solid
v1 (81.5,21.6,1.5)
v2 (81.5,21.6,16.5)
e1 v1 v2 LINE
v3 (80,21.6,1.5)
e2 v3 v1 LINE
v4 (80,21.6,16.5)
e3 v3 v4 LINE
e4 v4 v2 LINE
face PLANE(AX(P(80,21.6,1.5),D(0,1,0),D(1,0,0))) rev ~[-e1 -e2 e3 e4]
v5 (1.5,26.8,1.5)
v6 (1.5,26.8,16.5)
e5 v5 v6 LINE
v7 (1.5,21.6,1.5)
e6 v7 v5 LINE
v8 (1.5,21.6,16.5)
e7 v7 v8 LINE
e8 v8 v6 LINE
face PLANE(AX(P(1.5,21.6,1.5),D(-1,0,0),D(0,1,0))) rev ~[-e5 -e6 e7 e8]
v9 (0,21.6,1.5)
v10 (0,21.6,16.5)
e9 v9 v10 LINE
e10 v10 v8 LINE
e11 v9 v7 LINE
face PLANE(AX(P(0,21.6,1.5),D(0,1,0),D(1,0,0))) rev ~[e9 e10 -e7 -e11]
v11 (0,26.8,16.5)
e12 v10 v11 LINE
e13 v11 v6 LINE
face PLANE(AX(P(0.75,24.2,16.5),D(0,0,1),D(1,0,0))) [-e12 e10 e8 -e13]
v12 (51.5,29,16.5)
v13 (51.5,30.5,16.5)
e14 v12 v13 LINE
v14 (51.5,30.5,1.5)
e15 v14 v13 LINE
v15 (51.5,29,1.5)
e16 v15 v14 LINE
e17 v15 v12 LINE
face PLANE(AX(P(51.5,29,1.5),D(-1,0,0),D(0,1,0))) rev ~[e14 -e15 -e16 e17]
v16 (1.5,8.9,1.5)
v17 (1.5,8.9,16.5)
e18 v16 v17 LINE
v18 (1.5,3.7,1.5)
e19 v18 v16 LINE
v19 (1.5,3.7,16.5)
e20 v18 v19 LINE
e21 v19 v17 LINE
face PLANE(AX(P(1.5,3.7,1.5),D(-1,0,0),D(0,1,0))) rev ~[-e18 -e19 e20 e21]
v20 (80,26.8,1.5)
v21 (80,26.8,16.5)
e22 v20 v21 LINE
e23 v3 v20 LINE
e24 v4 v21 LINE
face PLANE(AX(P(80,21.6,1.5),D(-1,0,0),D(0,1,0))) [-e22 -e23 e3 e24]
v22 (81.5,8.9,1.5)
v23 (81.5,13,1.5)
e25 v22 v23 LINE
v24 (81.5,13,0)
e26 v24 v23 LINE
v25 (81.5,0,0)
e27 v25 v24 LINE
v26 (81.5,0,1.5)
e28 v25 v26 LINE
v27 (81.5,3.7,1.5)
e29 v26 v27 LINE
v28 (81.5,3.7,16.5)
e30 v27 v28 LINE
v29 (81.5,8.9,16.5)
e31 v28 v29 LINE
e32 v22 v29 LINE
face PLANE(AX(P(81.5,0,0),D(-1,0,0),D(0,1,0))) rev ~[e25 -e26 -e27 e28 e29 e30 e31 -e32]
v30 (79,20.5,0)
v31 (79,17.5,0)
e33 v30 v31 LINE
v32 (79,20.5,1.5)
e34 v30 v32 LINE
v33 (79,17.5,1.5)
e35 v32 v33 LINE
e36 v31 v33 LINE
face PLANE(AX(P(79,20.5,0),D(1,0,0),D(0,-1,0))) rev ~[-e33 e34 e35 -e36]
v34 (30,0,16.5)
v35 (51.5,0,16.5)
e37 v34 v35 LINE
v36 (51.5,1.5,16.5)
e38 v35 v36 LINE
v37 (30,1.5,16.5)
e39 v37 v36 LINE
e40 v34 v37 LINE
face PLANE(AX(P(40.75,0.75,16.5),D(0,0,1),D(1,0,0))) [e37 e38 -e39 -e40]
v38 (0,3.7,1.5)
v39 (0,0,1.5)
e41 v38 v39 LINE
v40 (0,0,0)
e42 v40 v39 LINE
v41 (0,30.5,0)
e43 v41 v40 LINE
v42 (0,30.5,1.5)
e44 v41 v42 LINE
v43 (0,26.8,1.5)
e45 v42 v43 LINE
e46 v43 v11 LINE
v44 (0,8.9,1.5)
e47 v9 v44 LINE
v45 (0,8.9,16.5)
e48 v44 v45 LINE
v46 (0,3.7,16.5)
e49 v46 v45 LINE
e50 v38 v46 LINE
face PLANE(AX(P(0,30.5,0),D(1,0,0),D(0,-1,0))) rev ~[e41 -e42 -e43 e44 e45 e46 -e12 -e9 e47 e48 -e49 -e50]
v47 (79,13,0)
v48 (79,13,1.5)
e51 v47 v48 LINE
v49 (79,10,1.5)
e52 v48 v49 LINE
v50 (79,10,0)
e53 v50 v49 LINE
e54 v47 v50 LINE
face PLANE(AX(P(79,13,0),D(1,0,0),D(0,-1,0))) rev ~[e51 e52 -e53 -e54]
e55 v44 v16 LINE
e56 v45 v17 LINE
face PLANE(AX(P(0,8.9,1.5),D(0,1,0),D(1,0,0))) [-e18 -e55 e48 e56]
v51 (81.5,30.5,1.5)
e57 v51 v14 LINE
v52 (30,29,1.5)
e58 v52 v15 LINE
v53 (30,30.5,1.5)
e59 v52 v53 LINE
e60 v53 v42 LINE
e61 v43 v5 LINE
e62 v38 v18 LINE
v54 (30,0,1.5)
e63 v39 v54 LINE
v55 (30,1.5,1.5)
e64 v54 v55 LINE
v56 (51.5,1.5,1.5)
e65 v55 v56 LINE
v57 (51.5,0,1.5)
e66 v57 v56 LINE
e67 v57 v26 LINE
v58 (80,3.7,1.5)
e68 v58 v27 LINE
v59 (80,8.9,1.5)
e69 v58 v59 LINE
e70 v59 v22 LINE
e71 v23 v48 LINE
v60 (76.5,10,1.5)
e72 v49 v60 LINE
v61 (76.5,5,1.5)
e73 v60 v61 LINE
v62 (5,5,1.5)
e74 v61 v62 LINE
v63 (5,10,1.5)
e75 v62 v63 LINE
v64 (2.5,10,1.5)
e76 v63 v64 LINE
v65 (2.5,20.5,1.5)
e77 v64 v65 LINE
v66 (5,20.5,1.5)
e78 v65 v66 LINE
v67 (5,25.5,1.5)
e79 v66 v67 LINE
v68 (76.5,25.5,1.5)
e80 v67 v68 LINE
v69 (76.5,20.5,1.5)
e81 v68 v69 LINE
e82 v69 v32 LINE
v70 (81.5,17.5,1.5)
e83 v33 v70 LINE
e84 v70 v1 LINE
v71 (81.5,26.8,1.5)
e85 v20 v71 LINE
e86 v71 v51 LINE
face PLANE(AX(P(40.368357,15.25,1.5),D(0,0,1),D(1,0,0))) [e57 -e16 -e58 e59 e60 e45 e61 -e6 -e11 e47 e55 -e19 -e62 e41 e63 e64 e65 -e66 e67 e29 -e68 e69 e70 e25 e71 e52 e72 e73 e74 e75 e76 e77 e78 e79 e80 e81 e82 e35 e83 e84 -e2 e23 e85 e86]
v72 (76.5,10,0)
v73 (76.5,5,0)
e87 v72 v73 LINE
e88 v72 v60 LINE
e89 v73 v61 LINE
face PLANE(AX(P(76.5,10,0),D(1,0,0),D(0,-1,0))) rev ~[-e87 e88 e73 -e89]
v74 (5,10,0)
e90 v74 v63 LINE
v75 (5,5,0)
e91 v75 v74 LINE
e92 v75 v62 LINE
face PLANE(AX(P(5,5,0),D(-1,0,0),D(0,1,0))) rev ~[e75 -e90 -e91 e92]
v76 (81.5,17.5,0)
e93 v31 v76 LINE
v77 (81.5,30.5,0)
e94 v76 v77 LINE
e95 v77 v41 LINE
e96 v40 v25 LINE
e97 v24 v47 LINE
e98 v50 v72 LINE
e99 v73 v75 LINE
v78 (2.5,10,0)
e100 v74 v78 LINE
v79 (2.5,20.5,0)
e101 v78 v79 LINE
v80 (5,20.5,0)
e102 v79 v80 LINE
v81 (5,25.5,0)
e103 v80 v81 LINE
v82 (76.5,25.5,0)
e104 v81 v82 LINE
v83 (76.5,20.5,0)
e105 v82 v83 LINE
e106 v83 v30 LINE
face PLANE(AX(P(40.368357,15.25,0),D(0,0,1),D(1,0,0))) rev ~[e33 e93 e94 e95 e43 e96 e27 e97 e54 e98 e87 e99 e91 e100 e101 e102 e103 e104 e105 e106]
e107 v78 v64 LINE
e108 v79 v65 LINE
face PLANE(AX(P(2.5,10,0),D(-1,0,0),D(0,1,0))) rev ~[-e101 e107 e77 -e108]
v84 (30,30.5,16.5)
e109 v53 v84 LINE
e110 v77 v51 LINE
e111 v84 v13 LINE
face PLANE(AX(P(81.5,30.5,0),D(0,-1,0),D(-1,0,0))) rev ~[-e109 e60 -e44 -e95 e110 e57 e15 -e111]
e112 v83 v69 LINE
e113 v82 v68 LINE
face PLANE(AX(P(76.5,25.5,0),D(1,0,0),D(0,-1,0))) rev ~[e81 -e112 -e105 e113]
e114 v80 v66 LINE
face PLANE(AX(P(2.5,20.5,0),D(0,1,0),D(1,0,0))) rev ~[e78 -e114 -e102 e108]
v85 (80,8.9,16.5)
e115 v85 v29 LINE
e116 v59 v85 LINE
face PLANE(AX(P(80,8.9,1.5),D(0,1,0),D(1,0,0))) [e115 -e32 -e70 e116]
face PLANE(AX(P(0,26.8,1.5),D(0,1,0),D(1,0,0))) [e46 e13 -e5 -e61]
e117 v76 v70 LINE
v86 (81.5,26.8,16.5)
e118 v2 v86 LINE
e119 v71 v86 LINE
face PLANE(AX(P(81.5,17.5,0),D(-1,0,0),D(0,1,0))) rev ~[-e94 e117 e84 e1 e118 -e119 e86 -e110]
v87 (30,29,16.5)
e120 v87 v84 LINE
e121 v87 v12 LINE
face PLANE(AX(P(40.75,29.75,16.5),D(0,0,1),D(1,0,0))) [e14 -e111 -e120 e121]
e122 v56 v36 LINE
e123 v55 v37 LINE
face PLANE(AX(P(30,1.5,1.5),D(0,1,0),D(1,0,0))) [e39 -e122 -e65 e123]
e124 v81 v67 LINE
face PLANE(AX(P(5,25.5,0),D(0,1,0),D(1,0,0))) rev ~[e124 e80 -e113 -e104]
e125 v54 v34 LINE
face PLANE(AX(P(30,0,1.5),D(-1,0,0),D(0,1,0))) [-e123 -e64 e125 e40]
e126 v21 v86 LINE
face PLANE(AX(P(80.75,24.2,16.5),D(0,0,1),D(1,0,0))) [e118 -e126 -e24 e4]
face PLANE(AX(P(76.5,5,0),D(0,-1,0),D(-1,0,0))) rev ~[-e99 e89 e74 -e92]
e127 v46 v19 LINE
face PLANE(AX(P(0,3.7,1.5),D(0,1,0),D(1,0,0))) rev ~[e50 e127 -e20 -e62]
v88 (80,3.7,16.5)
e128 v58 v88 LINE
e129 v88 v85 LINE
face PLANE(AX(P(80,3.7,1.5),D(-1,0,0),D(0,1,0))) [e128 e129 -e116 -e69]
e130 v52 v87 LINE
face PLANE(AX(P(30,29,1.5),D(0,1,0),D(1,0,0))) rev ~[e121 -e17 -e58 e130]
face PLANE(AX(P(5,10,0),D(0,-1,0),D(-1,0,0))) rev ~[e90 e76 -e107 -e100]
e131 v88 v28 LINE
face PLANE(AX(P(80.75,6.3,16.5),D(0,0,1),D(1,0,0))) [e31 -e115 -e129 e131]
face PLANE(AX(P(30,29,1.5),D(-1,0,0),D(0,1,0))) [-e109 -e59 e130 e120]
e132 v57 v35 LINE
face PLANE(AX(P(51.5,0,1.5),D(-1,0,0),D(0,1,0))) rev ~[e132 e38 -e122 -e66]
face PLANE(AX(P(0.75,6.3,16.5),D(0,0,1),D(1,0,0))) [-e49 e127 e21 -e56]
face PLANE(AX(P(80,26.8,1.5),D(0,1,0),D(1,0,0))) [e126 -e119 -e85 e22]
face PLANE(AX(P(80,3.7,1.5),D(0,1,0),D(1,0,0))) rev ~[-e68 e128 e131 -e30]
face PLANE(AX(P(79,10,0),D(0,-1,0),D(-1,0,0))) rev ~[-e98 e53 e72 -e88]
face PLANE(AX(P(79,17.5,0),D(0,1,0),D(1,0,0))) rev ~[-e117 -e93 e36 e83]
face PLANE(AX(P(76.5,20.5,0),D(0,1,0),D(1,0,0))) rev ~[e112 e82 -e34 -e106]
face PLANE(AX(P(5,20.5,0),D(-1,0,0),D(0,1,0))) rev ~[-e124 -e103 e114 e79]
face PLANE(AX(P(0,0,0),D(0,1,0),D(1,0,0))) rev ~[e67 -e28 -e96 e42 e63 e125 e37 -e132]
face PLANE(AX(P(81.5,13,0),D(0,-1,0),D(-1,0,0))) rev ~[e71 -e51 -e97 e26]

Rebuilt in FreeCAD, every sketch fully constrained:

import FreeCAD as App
import Part
import Sketcher
from FreeCAD import Vector
Q = App.Units.Quantity

doc = App.newDocument("Part")
body = doc.addObject("PartDesign::Body", "Body")

sketch1 = body.newObject("Sketcher::SketchObject", "Sketch")
sketch1.AttachmentSupport = (doc.getObject("XY_Plane"), [""])
sketch1.MapMode = "FlatFace"
sketch1.addGeometry(Part.LineSegment(Vector(0, 0, 0), Vector(81.5, 0, 0)), False)
sketch1.addGeometry(Part.LineSegment(Vector(81.5, 0, 0), Vector(81.5, 13, 0)), False)
sketch1.addGeometry(Part.LineSegment(Vector(81.5, 13, 0), Vector(79, 13, 0)), False)
sketch1.addGeometry(Part.LineSegment(Vector(79, 13, 0), Vector(79, 10, 0)), False)
sketch1.addGeometry(Part.LineSegment(Vector(79, 10, 0), Vector(76.5, 10, 0)), False)
sketch1.addGeometry(Part.LineSegment(Vector(76.5, 10, 0), Vector(76.5, 5, 0)), False)
sketch1.addGeometry(Part.LineSegment(Vector(76.5, 5, 0), Vector(5, 5, 0)), False)
sketch1.addGeometry(Part.LineSegment(Vector(5, 5, 0), Vector(5, 10, 0)), False)
sketch1.addGeometry(Part.LineSegment(Vector(5, 10, 0), Vector(2.5, 10, 0)), False)
sketch1.addGeometry(Part.LineSegment(Vector(2.5, 10, 0), Vector(2.5, 20.5, 0)), False)
sketch1.addGeometry(Part.LineSegment(Vector(2.5, 20.5, 0), Vector(5, 20.5, 0)), False)
sketch1.addGeometry(Part.LineSegment(Vector(5, 20.5, 0), Vector(5, 25.5, 0)), False)
sketch1.addGeometry(Part.LineSegment(Vector(5, 25.5, 0), Vector(76.5, 25.5, 0)), False)
sketch1.addGeometry(Part.LineSegment(Vector(76.5, 25.5, 0), Vector(76.5, 20.5, 0)), False)
sketch1.addGeometry(Part.LineSegment(Vector(76.5, 20.5, 0), Vector(79, 20.5, 0)), False)
sketch1.addGeometry(Part.LineSegment(Vector(79, 20.5, 0), Vector(79, 17.5, 0)), False)
sketch1.addGeometry(Part.LineSegment(Vector(79, 17.5, 0), Vector(81.5, 17.5, 0)), False)
sketch1.addGeometry(Part.LineSegment(Vector(81.5, 17.5, 0), Vector(81.5, 30.5, 0)), False)
sketch1.addGeometry(Part.LineSegment(Vector(81.5, 30.5, 0), Vector(0, 30.5, 0)), False)
sketch1.addGeometry(Part.LineSegment(Vector(0, 30.5, 0), Vector(0, 0, 0)), False)
sketch1.addConstraint(Sketcher.Constraint("Coincident", 0, 2, 1, 1))
sketch1.addConstraint(Sketcher.Constraint("Coincident", 1, 2, 2, 1))
sketch1.addConstraint(Sketcher.Constraint("Coincident", 2, 2, 3, 1))
sketch1.addConstraint(Sketcher.Constraint("Coincident", 3, 2, 4, 1))
sketch1.addConstraint(Sketcher.Constraint("Coincident", 4, 2, 5, 1))
sketch1.addConstraint(Sketcher.Constraint("Coincident", 5, 2, 6, 1))
sketch1.addConstraint(Sketcher.Constraint("Coincident", 6, 2, 7, 1))
sketch1.addConstraint(Sketcher.Constraint("Coincident", 7, 2, 8, 1))
sketch1.addConstraint(Sketcher.Constraint("Coincident", 8, 2, 9, 1))
sketch1.addConstraint(Sketcher.Constraint("Coincident", 9, 2, 10, 1))
sketch1.addConstraint(Sketcher.Constraint("Coincident", 10, 2, 11, 1))
sketch1.addConstraint(Sketcher.Constraint("Coincident", 11, 2, 12, 1))
sketch1.addConstraint(Sketcher.Constraint("Coincident", 12, 2, 13, 1))
sketch1.addConstraint(Sketcher.Constraint("Coincident", 13, 2, 14, 1))
sketch1.addConstraint(Sketcher.Constraint("Coincident", 14, 2, 15, 1))
sketch1.addConstraint(Sketcher.Constraint("Coincident", 15, 2, 16, 1))
sketch1.addConstraint(Sketcher.Constraint("Coincident", 16, 2, 17, 1))
sketch1.addConstraint(Sketcher.Constraint("Coincident", 17, 2, 18, 1))
sketch1.addConstraint(Sketcher.Constraint("Coincident", 18, 2, 19, 1))
sketch1.addConstraint(Sketcher.Constraint("Coincident", 19, 2, 0, 1))
sketch1.addConstraint(Sketcher.Constraint("Horizontal", 0))
sketch1.addConstraint(Sketcher.Constraint("Vertical", 1))
sketch1.addConstraint(Sketcher.Constraint("Horizontal", 2))
sketch1.addConstraint(Sketcher.Constraint("Vertical", 3))
sketch1.addConstraint(Sketcher.Constraint("Horizontal", 4))
sketch1.addConstraint(Sketcher.Constraint("Vertical", 5))
sketch1.addConstraint(Sketcher.Constraint("Horizontal", 6))
sketch1.addConstraint(Sketcher.Constraint("Vertical", 7))
sketch1.addConstraint(Sketcher.Constraint("Horizontal", 8))
sketch1.addConstraint(Sketcher.Constraint("Vertical", 9))
sketch1.addConstraint(Sketcher.Constraint("Horizontal", 10))
sketch1.addConstraint(Sketcher.Constraint("Vertical", 11))
sketch1.addConstraint(Sketcher.Constraint("Horizontal", 12))
sketch1.addConstraint(Sketcher.Constraint("Vertical", 13))
sketch1.addConstraint(Sketcher.Constraint("Horizontal", 14))
sketch1.addConstraint(Sketcher.Constraint("Vertical", 15))
sketch1.addConstraint(Sketcher.Constraint("Horizontal", 16))
sketch1.addConstraint(Sketcher.Constraint("Vertical", 17))
sketch1.addConstraint(Sketcher.Constraint("Horizontal", 18))
sketch1.addConstraint(Sketcher.Constraint("Vertical", 19))
sketch1.addConstraint(Sketcher.Constraint("Coincident", 19, 2, -1, 1))
sketch1.addConstraint(Sketcher.Constraint("Horizontal", 4, 2, 7, 2))
sketch1.addConstraint(Sketcher.Constraint("Horizontal", 10, 2, 13, 2))
sketch1.addConstraint(Sketcher.Constraint("Vertical", 7, 2, 10, 2))
sketch1.addConstraint(Sketcher.Constraint("Vertical", 5, 2, 12, 2))
sketch1.addConstraint(Sketcher.Constraint("Vertical", 3, 2, 14, 2))
sketch1.addConstraint(Sketcher.Constraint("Vertical", 1, 2, 16, 2))
sketch1.addConstraint(Sketcher.Constraint("Equal", 2, 4))
sketch1.addConstraint(Sketcher.Constraint("Equal", 4, 8))
sketch1.addConstraint(Sketcher.Constraint("Equal", 7, 11))
sketch1.addConstraint(Sketcher.Constraint("Equal", 3, 15))
sketch1.addConstraint(Sketcher.Constraint("Equal", 1, 17))
sketch1.addConstraint(Sketcher.Constraint("DistanceY", 1, 1, 1, 2, Q("13 mm")))
sketch1.addConstraint(Sketcher.Constraint("DistanceY", 3, 2, 3, 1, Q("3 mm")))
sketch1.addConstraint(Sketcher.Constraint("DistanceY", 5, 2, 5, 1, Q("5 mm")))
sketch1.addConstraint(Sketcher.Constraint("DistanceX", 0, 1, 0, 2, Q("81.5 mm")))
sketch1.addConstraint(Sketcher.Constraint("DistanceX", 2, 2, 2, 1, Q("2.5 mm")))
sketch1.addConstraint(Sketcher.Constraint("DistanceX", 6, 2, 6, 1, Q("71.5 mm")))
sketch1.addConstraint(Sketcher.Constraint("DistanceY", 9, 1, 9, 2, Q("10.5 mm")))
pad1 = body.newObject("PartDesign::Pad", "Pad")
pad1.Profile = sketch1
pad1.Length = 1.5

sketch2 = body.newObject("Sketcher::SketchObject", "Sketch001")
sketch2.AttachmentSupport = (doc.getObject("XY_Plane"), [""])
sketch2.MapMode = "FlatFace"
sketch2.AttachmentOffset = App.Placement(Vector(0, 0, 1.5), App.Rotation())
sketch2.addGeometry(Part.LineSegment(Vector(0, 26.8, 0), Vector(0, 21.6, 0)), False)
sketch2.addGeometry(Part.LineSegment(Vector(0, 21.6, 0), Vector(1.5, 21.6, 0)), False)
sketch2.addGeometry(Part.LineSegment(Vector(1.5, 21.6, 0), Vector(1.5, 26.8, 0)), False)
sketch2.addGeometry(Part.LineSegment(Vector(1.5, 26.8, 0), Vector(0, 26.8, 0)), False)
sketch2.addGeometry(Part.LineSegment(Vector(30, 1.5, 0), Vector(30, 0, 0)), False)
sketch2.addGeometry(Part.LineSegment(Vector(30, 0, 0), Vector(51.5, 0, 0)), False)
sketch2.addGeometry(Part.LineSegment(Vector(51.5, 0, 0), Vector(51.5, 1.5, 0)), False)
sketch2.addGeometry(Part.LineSegment(Vector(51.5, 1.5, 0), Vector(30, 1.5, 0)), False)
sketch2.addGeometry(Part.LineSegment(Vector(80, 8.9, 0), Vector(80, 3.7, 0)), False)
sketch2.addGeometry(Part.LineSegment(Vector(80, 3.7, 0), Vector(81.5, 3.7, 0)), False)
sketch2.addGeometry(Part.LineSegment(Vector(81.5, 3.7, 0), Vector(81.5, 8.9, 0)), False)
sketch2.addGeometry(Part.LineSegment(Vector(81.5, 8.9, 0), Vector(80, 8.9, 0)), False)
sketch2.addGeometry(Part.LineSegment(Vector(30, 30.5, 0), Vector(30, 29, 0)), False)
sketch2.addGeometry(Part.LineSegment(Vector(30, 29, 0), Vector(51.5, 29, 0)), False)
sketch2.addGeometry(Part.LineSegment(Vector(51.5, 29, 0), Vector(51.5, 30.5, 0)), False)
sketch2.addGeometry(Part.LineSegment(Vector(51.5, 30.5, 0), Vector(30, 30.5, 0)), False)
sketch2.addGeometry(Part.LineSegment(Vector(80, 26.8, 0), Vector(80, 21.6, 0)), False)
sketch2.addGeometry(Part.LineSegment(Vector(80, 21.6, 0), Vector(81.5, 21.6, 0)), False)
sketch2.addGeometry(Part.LineSegment(Vector(81.5, 21.6, 0), Vector(81.5, 26.8, 0)), False)
sketch2.addGeometry(Part.LineSegment(Vector(81.5, 26.8, 0), Vector(80, 26.8, 0)), False)
sketch2.addGeometry(Part.LineSegment(Vector(0, 8.9, 0), Vector(0, 3.7, 0)), False)
sketch2.addGeometry(Part.LineSegment(Vector(0, 3.7, 0), Vector(1.5, 3.7, 0)), False)
sketch2.addGeometry(Part.LineSegment(Vector(1.5, 3.7, 0), Vector(1.5, 8.9, 0)), False)
sketch2.addGeometry(Part.LineSegment(Vector(1.5, 8.9, 0), Vector(0, 8.9, 0)), False)
sketch2.addConstraint(Sketcher.Constraint("Coincident", 0, 2, 1, 1))
sketch2.addConstraint(Sketcher.Constraint("Coincident", 1, 2, 2, 1))
sketch2.addConstraint(Sketcher.Constraint("Coincident", 2, 2, 3, 1))
sketch2.addConstraint(Sketcher.Constraint("Coincident", 3, 2, 0, 1))
sketch2.addConstraint(Sketcher.Constraint("Coincident", 4, 2, 5, 1))
sketch2.addConstraint(Sketcher.Constraint("Coincident", 5, 2, 6, 1))
sketch2.addConstraint(Sketcher.Constraint("Coincident", 6, 2, 7, 1))
sketch2.addConstraint(Sketcher.Constraint("Coincident", 7, 2, 4, 1))
sketch2.addConstraint(Sketcher.Constraint("Coincident", 8, 2, 9, 1))
sketch2.addConstraint(Sketcher.Constraint("Coincident", 9, 2, 10, 1))
sketch2.addConstraint(Sketcher.Constraint("Coincident", 10, 2, 11, 1))
sketch2.addConstraint(Sketcher.Constraint("Coincident", 11, 2, 8, 1))
sketch2.addConstraint(Sketcher.Constraint("Coincident", 12, 2, 13, 1))
sketch2.addConstraint(Sketcher.Constraint("Coincident", 13, 2, 14, 1))
sketch2.addConstraint(Sketcher.Constraint("Coincident", 14, 2, 15, 1))
sketch2.addConstraint(Sketcher.Constraint("Coincident", 15, 2, 12, 1))
sketch2.addConstraint(Sketcher.Constraint("Coincident", 16, 2, 17, 1))
sketch2.addConstraint(Sketcher.Constraint("Coincident", 17, 2, 18, 1))
sketch2.addConstraint(Sketcher.Constraint("Coincident", 18, 2, 19, 1))
sketch2.addConstraint(Sketcher.Constraint("Coincident", 19, 2, 16, 1))
sketch2.addConstraint(Sketcher.Constraint("Coincident", 20, 2, 21, 1))
sketch2.addConstraint(Sketcher.Constraint("Coincident", 21, 2, 22, 1))
sketch2.addConstraint(Sketcher.Constraint("Coincident", 22, 2, 23, 1))
sketch2.addConstraint(Sketcher.Constraint("Coincident", 23, 2, 20, 1))
sketch2.addConstraint(Sketcher.Constraint("Vertical", 0))
sketch2.addConstraint(Sketcher.Constraint("Horizontal", 1))
sketch2.addConstraint(Sketcher.Constraint("Vertical", 2))
sketch2.addConstraint(Sketcher.Constraint("Horizontal", 3))
sketch2.addConstraint(Sketcher.Constraint("Vertical", 4))
sketch2.addConstraint(Sketcher.Constraint("Horizontal", 5))
sketch2.addConstraint(Sketcher.Constraint("Vertical", 6))
sketch2.addConstraint(Sketcher.Constraint("Horizontal", 7))
sketch2.addConstraint(Sketcher.Constraint("Vertical", 8))
sketch2.addConstraint(Sketcher.Constraint("Horizontal", 9))
sketch2.addConstraint(Sketcher.Constraint("Vertical", 10))
sketch2.addConstraint(Sketcher.Constraint("Horizontal", 11))
sketch2.addConstraint(Sketcher.Constraint("Vertical", 12))
sketch2.addConstraint(Sketcher.Constraint("Horizontal", 13))
sketch2.addConstraint(Sketcher.Constraint("Vertical", 14))
sketch2.addConstraint(Sketcher.Constraint("Horizontal", 15))
sketch2.addConstraint(Sketcher.Constraint("Vertical", 16))
sketch2.addConstraint(Sketcher.Constraint("Horizontal", 17))
sketch2.addConstraint(Sketcher.Constraint("Vertical", 18))
sketch2.addConstraint(Sketcher.Constraint("Horizontal", 19))
sketch2.addConstraint(Sketcher.Constraint("Vertical", 20))
sketch2.addConstraint(Sketcher.Constraint("Horizontal", 21))
sketch2.addConstraint(Sketcher.Constraint("Vertical", 22))
sketch2.addConstraint(Sketcher.Constraint("Horizontal", 23))
sketch2.addConstraint(Sketcher.Constraint("PointOnObject", 0, 2, -2))
sketch2.addConstraint(Sketcher.Constraint("PointOnObject", 4, 2, -1))
sketch2.addConstraint(Sketcher.Constraint("PointOnObject", 20, 2, -2))
sketch2.addConstraint(Sketcher.Constraint("Horizontal", 1, 2, 16, 2))
sketch2.addConstraint(Sketcher.Constraint("Horizontal", 3, 2, 18, 2))
sketch2.addConstraint(Sketcher.Constraint("Horizontal", 9, 2, 20, 2))
sketch2.addConstraint(Sketcher.Constraint("Horizontal", 11, 2, 22, 2))
sketch2.addConstraint(Sketcher.Constraint("Vertical", 7, 2, 12, 2))
sketch2.addConstraint(Sketcher.Constraint("Vertical", 6, 2, 13, 2))
sketch2.addConstraint(Sketcher.Constraint("Vertical", 11, 2, 16, 2))
sketch2.addConstraint(Sketcher.Constraint("Vertical", 10, 2, 17, 2))
sketch2.addConstraint(Sketcher.Constraint("Vertical", 2, 2, 21, 2))
sketch2.addConstraint(Sketcher.Constraint("Equal", 3, 9))
sketch2.addConstraint(Sketcher.Constraint("Equal", 23, 4))
sketch2.addConstraint(Sketcher.Constraint("Equal", 2, 8))
sketch2.addConstraint(Sketcher.Constraint("Equal", 6, 12))
sketch2.addConstraint(Sketcher.Constraint("DistanceX", 1, 1, 1, 2, Q("1.5 mm")))
sketch2.addConstraint(Sketcher.Constraint("DistanceX", 5, 1, 5, 2, Q("21.5 mm")))
sketch2.addConstraint(Sketcher.Constraint("DistanceY", 0, 2, 0, 1, Q("5.2 mm")))
sketch2.addConstraint(Sketcher.Constraint("DistanceX", -1, 1, 4, 2, Q("30 mm")))
sketch2.addConstraint(Sketcher.Constraint("DistanceX", -1, 1, 8, 2, Q("80 mm")))
sketch2.addConstraint(Sketcher.Constraint("DistanceY", -1, 1, 12, 2, Q("29 mm")))
sketch2.addConstraint(Sketcher.Constraint("DistanceY", -1, 1, 0, 2, Q("21.6 mm")))
sketch2.addConstraint(Sketcher.Constraint("DistanceY", -1, 1, 8, 2, Q("3.7 mm")))
pad2 = body.newObject("PartDesign::Pad", "Pad001")
pad2.Profile = sketch2
pad2.Length = 15

doc.recompute()
